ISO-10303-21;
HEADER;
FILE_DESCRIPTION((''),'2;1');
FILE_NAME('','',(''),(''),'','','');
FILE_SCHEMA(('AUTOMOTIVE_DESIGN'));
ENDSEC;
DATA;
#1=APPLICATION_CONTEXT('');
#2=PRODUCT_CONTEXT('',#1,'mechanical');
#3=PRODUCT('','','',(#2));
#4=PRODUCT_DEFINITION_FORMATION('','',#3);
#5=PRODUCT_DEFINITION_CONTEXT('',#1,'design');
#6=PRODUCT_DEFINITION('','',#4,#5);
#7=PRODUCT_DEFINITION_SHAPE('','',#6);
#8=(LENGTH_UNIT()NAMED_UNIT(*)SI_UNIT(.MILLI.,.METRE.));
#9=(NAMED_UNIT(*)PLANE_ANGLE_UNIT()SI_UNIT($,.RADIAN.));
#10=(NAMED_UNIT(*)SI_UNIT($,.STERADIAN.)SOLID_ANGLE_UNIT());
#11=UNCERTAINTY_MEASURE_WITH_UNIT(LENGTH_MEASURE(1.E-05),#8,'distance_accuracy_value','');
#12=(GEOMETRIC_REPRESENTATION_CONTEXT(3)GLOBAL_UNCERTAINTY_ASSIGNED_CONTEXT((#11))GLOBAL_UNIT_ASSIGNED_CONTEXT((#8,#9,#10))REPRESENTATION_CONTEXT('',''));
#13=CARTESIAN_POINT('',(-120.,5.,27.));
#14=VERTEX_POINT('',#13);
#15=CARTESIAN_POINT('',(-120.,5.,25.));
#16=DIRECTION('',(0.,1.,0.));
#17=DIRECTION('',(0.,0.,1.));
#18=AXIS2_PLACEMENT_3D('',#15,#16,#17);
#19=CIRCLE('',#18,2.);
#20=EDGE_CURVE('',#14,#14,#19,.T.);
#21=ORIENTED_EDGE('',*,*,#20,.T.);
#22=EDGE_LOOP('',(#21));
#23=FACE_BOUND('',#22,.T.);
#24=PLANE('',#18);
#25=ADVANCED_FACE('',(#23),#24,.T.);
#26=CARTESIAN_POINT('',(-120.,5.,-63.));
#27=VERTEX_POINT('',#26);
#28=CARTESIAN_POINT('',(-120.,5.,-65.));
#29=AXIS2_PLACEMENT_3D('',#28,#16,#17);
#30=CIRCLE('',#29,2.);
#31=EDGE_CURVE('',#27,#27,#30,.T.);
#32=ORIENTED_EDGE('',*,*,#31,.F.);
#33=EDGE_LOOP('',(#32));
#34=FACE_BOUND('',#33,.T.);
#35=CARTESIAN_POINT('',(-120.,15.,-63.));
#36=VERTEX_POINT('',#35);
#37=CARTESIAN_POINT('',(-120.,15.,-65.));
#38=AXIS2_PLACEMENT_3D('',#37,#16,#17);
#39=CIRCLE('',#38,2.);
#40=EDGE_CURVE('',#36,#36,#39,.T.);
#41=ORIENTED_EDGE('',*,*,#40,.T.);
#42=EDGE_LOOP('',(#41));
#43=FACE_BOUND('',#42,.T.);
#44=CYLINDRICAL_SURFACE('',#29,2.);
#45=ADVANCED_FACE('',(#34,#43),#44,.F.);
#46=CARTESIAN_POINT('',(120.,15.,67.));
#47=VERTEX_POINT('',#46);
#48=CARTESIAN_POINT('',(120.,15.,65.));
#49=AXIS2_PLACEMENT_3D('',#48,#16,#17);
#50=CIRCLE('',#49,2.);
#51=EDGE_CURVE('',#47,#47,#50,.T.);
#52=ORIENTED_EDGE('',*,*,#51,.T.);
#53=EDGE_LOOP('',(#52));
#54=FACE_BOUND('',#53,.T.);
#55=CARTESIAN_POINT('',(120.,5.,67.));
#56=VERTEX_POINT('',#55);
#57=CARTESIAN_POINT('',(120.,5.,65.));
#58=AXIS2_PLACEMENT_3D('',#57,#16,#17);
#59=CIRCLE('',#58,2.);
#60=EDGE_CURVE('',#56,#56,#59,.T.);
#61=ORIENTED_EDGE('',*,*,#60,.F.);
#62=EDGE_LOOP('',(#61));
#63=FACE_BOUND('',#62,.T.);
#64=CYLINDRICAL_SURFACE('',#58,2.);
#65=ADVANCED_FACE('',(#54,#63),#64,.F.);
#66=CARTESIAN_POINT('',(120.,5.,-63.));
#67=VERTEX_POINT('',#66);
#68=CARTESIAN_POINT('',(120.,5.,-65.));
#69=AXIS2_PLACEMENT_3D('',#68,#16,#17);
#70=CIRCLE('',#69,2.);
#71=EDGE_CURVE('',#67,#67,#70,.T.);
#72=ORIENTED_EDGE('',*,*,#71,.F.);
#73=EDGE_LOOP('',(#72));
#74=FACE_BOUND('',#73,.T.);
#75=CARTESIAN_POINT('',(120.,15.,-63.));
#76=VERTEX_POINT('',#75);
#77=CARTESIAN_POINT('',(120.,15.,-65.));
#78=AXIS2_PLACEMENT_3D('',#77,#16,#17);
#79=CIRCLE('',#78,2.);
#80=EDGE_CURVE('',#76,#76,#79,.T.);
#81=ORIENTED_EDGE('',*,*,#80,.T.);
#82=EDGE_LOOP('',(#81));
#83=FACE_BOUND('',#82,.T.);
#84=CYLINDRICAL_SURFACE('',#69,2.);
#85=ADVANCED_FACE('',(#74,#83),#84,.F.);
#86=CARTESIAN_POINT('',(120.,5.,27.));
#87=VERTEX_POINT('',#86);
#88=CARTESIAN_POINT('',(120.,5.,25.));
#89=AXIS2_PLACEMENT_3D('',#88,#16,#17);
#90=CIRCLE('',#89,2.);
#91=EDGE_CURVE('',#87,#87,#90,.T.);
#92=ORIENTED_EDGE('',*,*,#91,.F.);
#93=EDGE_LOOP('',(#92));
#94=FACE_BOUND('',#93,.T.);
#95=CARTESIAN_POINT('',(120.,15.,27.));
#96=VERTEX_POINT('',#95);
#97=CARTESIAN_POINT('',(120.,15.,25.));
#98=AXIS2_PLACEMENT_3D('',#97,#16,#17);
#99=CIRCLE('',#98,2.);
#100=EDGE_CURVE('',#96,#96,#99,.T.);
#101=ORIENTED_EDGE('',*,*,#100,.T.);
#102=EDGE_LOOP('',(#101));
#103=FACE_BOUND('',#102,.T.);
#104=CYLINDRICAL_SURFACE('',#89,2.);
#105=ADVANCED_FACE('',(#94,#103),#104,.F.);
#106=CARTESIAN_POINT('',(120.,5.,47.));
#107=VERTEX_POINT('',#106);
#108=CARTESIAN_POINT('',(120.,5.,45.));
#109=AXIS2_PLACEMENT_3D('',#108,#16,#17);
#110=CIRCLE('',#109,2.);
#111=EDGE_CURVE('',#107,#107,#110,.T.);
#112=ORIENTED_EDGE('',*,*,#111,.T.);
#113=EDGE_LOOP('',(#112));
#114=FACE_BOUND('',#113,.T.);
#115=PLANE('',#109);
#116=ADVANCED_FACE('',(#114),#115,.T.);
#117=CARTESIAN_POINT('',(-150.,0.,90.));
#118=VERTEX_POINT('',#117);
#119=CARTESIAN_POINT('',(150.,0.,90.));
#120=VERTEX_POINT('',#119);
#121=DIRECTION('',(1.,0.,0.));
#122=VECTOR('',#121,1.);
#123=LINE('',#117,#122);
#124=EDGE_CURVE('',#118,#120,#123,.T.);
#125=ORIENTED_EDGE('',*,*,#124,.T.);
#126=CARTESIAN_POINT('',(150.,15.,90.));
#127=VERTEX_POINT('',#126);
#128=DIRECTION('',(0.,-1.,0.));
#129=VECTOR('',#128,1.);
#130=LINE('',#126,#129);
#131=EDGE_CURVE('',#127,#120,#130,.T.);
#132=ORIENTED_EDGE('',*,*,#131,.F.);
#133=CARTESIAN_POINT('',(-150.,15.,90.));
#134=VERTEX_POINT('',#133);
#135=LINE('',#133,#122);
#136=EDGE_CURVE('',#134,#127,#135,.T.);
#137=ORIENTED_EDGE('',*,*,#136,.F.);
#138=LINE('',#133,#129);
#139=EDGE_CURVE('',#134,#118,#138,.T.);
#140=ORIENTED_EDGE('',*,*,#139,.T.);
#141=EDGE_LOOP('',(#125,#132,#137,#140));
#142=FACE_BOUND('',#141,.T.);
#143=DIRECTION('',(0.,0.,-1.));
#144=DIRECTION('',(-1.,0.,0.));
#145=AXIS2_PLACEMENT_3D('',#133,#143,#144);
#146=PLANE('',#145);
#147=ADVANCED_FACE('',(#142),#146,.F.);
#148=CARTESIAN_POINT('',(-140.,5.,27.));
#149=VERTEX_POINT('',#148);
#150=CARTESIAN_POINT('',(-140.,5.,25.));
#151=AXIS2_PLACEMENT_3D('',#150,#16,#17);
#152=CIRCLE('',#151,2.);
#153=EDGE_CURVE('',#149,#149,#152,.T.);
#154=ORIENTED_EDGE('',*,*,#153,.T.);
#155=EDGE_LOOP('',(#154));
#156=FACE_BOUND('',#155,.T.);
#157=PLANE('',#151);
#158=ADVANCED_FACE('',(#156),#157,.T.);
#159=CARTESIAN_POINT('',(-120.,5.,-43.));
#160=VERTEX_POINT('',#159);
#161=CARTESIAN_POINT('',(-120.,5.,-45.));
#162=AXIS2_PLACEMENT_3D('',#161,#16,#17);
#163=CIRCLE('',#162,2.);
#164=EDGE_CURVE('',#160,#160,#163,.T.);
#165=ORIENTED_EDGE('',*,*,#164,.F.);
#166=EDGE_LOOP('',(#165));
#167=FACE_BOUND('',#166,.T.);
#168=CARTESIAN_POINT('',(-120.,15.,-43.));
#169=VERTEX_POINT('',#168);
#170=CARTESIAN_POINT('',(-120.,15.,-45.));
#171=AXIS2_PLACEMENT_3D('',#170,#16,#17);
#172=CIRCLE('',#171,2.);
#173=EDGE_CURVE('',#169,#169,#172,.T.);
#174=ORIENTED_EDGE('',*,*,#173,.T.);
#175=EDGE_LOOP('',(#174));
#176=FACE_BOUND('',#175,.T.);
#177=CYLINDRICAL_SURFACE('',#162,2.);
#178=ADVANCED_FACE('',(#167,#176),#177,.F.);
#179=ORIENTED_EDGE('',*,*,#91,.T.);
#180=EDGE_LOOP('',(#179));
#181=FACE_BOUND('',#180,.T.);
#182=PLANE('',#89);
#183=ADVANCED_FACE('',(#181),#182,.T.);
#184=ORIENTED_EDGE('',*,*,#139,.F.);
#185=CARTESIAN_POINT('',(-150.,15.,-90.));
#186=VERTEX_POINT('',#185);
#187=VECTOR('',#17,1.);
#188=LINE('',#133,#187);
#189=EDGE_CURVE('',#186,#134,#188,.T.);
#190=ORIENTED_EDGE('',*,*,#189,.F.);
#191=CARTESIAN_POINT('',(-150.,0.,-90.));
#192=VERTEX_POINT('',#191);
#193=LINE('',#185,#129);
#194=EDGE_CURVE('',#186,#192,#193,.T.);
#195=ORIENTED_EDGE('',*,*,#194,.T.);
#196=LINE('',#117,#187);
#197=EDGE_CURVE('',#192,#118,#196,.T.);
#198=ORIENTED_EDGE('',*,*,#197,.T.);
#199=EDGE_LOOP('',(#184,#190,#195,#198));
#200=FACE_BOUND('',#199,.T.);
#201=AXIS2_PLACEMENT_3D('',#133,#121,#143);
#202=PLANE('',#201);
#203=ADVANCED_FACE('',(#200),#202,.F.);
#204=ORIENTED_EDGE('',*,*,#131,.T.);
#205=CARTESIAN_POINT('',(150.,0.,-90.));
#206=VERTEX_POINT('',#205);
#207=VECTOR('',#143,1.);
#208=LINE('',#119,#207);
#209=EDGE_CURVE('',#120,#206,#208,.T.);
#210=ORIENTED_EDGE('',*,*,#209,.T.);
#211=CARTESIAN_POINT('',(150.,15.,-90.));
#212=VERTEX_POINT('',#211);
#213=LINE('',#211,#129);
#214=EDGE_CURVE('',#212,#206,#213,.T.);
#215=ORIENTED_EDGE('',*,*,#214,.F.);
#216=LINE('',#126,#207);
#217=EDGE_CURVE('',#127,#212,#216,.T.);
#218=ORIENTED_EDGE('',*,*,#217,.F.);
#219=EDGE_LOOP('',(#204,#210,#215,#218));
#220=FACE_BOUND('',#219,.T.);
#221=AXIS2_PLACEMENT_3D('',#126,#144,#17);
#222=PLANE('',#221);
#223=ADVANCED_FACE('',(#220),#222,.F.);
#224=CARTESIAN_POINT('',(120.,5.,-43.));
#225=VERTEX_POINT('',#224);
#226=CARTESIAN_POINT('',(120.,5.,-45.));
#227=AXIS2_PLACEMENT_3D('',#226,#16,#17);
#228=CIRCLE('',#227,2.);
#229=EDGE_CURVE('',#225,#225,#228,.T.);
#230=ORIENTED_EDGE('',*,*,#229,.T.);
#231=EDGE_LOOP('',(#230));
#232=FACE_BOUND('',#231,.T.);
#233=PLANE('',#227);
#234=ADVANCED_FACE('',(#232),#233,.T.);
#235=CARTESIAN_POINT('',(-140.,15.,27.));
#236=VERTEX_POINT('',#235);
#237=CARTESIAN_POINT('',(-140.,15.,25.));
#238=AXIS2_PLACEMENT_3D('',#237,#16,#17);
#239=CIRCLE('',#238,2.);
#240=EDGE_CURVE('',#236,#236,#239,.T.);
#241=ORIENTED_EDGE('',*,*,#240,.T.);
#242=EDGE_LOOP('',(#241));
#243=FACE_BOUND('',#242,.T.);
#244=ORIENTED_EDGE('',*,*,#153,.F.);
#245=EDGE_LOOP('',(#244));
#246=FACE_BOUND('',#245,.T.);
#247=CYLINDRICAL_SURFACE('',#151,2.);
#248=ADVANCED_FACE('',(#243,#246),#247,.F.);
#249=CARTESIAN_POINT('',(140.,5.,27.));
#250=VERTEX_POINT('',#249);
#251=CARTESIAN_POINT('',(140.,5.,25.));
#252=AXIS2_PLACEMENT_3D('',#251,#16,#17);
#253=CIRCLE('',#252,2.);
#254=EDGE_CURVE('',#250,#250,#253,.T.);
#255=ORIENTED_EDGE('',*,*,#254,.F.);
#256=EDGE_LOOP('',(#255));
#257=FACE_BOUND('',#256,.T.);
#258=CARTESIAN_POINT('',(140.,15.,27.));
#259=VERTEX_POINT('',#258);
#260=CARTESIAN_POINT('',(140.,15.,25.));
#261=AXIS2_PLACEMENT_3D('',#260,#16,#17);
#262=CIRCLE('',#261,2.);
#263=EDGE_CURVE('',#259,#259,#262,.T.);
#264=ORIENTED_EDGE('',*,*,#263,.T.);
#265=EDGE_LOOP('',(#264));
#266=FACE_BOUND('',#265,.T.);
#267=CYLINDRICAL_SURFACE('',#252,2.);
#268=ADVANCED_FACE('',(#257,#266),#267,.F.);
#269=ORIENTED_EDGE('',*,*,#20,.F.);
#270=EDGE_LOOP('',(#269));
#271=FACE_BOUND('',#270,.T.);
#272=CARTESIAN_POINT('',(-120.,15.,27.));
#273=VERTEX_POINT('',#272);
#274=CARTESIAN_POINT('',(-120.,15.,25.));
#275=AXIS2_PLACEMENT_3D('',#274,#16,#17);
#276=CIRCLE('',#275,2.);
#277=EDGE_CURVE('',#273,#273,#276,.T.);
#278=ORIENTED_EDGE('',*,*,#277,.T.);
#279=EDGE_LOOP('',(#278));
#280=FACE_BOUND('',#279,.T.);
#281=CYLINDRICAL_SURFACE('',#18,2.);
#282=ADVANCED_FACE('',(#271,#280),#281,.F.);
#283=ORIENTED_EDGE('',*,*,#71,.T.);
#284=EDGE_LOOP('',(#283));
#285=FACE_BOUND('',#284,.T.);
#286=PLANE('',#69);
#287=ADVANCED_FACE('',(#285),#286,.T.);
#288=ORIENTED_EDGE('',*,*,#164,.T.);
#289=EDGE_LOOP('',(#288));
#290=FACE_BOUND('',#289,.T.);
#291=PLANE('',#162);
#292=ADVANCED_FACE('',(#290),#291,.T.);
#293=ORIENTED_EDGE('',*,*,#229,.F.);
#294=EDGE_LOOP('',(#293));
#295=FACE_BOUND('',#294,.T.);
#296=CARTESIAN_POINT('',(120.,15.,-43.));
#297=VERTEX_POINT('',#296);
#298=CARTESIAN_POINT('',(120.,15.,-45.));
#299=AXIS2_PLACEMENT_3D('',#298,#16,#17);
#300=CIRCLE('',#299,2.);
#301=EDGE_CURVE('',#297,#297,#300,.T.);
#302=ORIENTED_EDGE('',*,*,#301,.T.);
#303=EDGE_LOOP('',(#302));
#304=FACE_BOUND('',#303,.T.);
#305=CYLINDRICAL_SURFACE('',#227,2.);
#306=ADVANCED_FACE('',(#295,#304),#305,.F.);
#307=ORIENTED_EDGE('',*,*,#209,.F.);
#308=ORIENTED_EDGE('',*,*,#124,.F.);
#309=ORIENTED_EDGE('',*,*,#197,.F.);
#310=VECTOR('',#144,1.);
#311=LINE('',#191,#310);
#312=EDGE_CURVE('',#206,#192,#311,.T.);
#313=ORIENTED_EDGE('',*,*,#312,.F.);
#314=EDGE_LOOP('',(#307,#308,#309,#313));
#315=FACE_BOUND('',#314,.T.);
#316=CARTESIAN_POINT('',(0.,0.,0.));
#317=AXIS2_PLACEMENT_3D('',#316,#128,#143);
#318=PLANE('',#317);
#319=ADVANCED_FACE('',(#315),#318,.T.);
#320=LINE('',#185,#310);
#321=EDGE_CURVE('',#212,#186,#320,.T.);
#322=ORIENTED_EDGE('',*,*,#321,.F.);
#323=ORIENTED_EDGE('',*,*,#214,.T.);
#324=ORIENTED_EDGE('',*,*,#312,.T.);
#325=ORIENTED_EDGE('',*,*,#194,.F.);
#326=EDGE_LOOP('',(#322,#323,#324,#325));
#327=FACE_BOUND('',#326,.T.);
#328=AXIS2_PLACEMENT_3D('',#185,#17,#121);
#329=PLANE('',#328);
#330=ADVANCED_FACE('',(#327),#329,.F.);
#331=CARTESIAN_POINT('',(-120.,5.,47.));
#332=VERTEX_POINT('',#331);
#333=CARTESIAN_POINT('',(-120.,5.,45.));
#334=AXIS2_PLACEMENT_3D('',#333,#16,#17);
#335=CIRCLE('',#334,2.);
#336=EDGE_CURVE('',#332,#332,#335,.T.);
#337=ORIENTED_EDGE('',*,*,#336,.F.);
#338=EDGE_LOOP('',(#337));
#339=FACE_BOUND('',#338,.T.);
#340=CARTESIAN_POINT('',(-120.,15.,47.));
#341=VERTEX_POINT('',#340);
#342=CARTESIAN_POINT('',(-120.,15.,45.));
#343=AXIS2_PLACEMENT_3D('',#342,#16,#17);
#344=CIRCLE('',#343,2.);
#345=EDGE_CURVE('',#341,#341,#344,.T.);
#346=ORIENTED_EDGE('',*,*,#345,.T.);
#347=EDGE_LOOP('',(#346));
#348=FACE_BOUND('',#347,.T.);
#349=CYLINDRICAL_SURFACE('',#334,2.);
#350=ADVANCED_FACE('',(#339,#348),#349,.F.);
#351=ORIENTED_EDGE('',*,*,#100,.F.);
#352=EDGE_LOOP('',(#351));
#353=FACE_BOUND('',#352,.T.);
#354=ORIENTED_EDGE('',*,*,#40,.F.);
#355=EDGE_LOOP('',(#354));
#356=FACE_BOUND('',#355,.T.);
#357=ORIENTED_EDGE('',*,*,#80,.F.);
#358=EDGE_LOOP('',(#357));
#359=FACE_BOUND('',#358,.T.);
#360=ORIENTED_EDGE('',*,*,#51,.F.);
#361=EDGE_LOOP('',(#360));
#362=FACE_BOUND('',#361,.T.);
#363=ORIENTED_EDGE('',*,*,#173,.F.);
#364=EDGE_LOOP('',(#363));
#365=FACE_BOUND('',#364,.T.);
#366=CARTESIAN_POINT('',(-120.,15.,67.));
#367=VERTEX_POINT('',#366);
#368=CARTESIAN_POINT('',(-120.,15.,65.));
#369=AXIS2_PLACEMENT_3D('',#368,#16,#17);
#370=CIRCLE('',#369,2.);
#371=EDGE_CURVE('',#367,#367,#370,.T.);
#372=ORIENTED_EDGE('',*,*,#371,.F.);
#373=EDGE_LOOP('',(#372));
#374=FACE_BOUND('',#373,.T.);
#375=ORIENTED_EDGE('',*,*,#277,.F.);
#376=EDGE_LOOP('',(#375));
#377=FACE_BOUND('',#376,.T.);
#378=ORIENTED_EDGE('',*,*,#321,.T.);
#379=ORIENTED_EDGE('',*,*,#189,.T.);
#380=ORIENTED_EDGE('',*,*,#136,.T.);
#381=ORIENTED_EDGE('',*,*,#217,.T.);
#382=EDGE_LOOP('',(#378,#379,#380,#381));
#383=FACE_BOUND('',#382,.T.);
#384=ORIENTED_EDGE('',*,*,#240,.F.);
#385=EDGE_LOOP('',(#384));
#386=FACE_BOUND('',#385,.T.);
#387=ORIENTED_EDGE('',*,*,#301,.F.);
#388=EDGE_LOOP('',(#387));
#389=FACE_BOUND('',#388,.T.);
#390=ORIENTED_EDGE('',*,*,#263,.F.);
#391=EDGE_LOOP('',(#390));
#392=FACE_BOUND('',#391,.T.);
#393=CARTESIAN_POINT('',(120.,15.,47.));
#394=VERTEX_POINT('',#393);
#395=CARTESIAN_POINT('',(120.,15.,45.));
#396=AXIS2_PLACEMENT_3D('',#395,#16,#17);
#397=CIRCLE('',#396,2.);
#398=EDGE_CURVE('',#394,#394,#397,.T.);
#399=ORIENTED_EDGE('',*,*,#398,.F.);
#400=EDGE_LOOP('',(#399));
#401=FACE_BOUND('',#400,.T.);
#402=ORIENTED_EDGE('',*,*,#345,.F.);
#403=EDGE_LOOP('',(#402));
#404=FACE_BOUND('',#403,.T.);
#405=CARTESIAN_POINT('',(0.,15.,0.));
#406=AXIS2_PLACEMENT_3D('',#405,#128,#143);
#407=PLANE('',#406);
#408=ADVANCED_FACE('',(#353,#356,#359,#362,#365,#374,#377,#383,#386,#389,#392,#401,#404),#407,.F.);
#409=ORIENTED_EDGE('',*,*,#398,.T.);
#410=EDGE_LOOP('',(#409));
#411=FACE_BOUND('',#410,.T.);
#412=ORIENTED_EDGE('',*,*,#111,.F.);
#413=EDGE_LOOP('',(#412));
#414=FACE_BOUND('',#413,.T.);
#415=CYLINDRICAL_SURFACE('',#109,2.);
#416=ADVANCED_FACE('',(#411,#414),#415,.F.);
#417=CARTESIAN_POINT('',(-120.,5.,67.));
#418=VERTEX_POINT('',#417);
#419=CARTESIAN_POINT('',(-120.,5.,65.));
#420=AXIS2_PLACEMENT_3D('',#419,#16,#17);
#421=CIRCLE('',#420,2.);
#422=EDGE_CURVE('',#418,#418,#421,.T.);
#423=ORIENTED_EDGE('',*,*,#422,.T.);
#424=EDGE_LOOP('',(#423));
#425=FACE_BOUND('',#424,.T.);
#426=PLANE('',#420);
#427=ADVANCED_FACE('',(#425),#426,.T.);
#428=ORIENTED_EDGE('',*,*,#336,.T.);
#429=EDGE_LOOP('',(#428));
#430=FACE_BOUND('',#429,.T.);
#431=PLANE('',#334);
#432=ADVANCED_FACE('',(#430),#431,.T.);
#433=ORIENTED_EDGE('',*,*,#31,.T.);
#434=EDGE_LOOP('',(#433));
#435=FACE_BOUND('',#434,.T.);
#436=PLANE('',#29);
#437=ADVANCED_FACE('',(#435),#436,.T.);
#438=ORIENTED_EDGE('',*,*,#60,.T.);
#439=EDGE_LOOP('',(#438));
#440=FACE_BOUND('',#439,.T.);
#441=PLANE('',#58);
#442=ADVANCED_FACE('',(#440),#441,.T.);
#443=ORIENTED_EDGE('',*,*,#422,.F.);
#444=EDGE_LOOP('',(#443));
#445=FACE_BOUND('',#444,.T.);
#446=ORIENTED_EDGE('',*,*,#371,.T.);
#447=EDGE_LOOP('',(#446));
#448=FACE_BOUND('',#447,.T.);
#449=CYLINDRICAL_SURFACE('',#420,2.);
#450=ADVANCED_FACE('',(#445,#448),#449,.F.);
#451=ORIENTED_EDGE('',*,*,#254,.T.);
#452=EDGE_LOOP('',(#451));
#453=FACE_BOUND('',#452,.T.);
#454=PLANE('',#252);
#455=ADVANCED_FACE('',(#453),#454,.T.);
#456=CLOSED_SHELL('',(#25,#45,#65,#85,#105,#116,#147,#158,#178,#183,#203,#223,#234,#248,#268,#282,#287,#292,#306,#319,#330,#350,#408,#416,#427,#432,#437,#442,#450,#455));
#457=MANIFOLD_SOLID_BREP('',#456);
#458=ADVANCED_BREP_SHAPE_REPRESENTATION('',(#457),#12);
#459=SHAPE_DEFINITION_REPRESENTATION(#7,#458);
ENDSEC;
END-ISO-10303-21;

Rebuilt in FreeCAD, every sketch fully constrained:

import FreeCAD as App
import Part
import Sketcher

V = App.Vector
Q = App.Units.Quantity


def add_polygon(sketch, points):
    """Adds a closed chain of lines whose ends are joined by coincident constraints."""
    first, n = sketch.GeometryCount, len(points)
    for a, b in zip(points, points[1:] + points[:1]):
        sketch.addGeometry(Part.LineSegment(App.Vector(*a, 0), App.Vector(*b, 0)), False)
    for i in range(n):
        sketch.addConstraint(Sketcher.Constraint("Coincident", first + i, 2, first + (i + 1) % n, 1))

doc = App.newDocument("Part")
params = doc.addObject("Spreadsheet::Sheet", "Params")
for row, (alias, value) in enumerate([
    ("sketch1_width", "300 mm"),
    ("sketch1_height", "180 mm"),
    ("pad1_length", "15 mm"),
    ("sketch2_diameter", "4 mm"),
    ("pocket1_length", "10 mm"),
], start=1):
    params.set(f"A{row}", alias)
    params.set(f"B{row}", "=" + value)
    params.setAlias(f"B{row}", alias)

body = doc.addObject("PartDesign::Body", "Body")

# Sketch on XZ plane
sketch1 = body.newObject("Sketcher::SketchObject", "Sketch")
sketch1.AttachmentSupport = (doc.getObject("XZ_Plane"), [""])
sketch1.MapMode = "FlatFace"
add_polygon(sketch1, [(-150, -90), (-150, 90), (150, 90), (150, -90)])  # lines 0-3
sketch1.addConstraint([
    Sketcher.Constraint("Vertical", 0),
    Sketcher.Constraint("Horizontal", 1),
    Sketcher.Constraint("Vertical", 2),
    Sketcher.Constraint("Horizontal", 3),
    Sketcher.Constraint("Symmetric", 0, 2, 2, 2, -1, 1),
    Sketcher.Constraint("DistanceX", 1, 1, 1, 2, Q("300 mm")),
    Sketcher.Constraint("DistanceY", 0, 1, 0, 2, Q("180 mm")),
])
sketch1.setExpression("Constraints[9]", "Params.sketch1_width")
sketch1.setExpression("Constraints[10]", "Params.sketch1_height")
pad1 = body.newObject("PartDesign::Pad", "Pad")
pad1.Profile = sketch1
pad1.setExpression("Length", "Params.pad1_length")
pad1.Reversed = True

# Sketch on XZ plane
sketch2 = body.newObject("Sketcher::SketchObject", "Sketch001")
sketch2.AttachmentSupport = (doc.getObject("XZ_Plane"), [""])
sketch2.MapMode = "FlatFace"
sketch2.AttachmentOffset = App.Placement(V(0, 0, -15), App.Rotation())
sketch2.addGeometry([
    Part.Circle(V(-120, 65, 0), V(0, 0, 1), 2),  # 0
    Part.Circle(V(-120, 45, 0), V(0, 0, 1), 2),  # 1
    Part.Circle(V(120, 65, 0), V(0, 0, 1), 2),  # 2
    Part.Circle(V(120, 45, 0), V(0, 0, 1), 2),  # 3
    Part.Circle(V(-140, 25, 0), V(0, 0, 1), 2),  # 4
    Part.Circle(V(-120, 25, 0), V(0, 0, 1), 2),  # 5
    Part.Circle(V(120, 25, 0), V(0, 0, 1), 2),  # 6
    Part.Circle(V(140, 25, 0), V(0, 0, 1), 2),  # 7
    Part.Circle(V(-120, -65, 0), V(0, 0, 1), 2),  # 8
    Part.Circle(V(-120, -45, 0), V(0, 0, 1), 2),  # 9
    Part.Circle(V(120, -45, 0), V(0, 0, 1), 2),  # 10
    Part.Circle(V(120, -65, 0), V(0, 0, 1), 2),  # 11
], False)
sketch2.addConstraint([
    Sketcher.Constraint("Equal", 0, 1),
    Sketcher.Constraint("Equal", 1, 2),
    Sketcher.Constraint("Equal", 2, 3),
    Sketcher.Constraint("Equal", 3, 4),
    Sketcher.Constraint("Equal", 4, 5),
    Sketcher.Constraint("Equal", 5, 6),
    Sketcher.Constraint("Equal", 6, 7),
    Sketcher.Constraint("Equal", 7, 8),
    Sketcher.Constraint("Equal", 8, 9),
    Sketcher.Constraint("Equal", 9, 10),
    Sketcher.Constraint("Equal", 10, 11),
    Sketcher.Constraint("Symmetric", 2, 3, 8, 3, -1, 1),
    Sketcher.Constraint("Symmetric", 3, 3, 9, 3, -1, 1),
    Sketcher.Constraint("Symmetric", 1, 3, 10, 3, -1, 1),
    Sketcher.Constraint("Symmetric", 0, 3, 11, 3, -1, 1),
    Sketcher.Constraint("Symmetric", 0, 3, 2, 3, -2),
    Sketcher.Constraint("Symmetric", 1, 3, 3, 3, -2),
    Sketcher.Constraint("Symmetric", 5, 3, 6, 3, -2),
    Sketcher.Constraint("Symmetric", 4, 3, 7, 3, -2),
    Sketcher.Constraint("Horizontal", 4, 3, 5, 3),
    Sketcher.Constraint("Vertical", 0, 3, 1, 3),
    Sketcher.Constraint("Vertical", 1, 3, 5, 3),
    Sketcher.Constraint("Diameter", 0, Q("4 mm")),
    Sketcher.Constraint("DistanceX", 0, 3, -1, 1, Q("120 mm")),
    Sketcher.Constraint("DistanceY", -1, 1, 0, 3, Q("65 mm")),
    Sketcher.Constraint("DistanceY", -1, 1, 1, 3, Q("45 mm")),
    Sketcher.Constraint("DistanceX", 4, 3, -1, 1, Q("140 mm")),
    Sketcher.Constraint("DistanceY", -1, 1, 4, 3, Q("25 mm")),
])
sketch2.setExpression("Constraints[22]", "Params.sketch2_diameter")
pocket1 = body.newObject("PartDesign::Pocket", "Pocket")
pocket1.Profile = sketch2
pocket1.setExpression("Length", "Params.pocket1_length")
pocket1.Reversed = True

doc.recompute()
